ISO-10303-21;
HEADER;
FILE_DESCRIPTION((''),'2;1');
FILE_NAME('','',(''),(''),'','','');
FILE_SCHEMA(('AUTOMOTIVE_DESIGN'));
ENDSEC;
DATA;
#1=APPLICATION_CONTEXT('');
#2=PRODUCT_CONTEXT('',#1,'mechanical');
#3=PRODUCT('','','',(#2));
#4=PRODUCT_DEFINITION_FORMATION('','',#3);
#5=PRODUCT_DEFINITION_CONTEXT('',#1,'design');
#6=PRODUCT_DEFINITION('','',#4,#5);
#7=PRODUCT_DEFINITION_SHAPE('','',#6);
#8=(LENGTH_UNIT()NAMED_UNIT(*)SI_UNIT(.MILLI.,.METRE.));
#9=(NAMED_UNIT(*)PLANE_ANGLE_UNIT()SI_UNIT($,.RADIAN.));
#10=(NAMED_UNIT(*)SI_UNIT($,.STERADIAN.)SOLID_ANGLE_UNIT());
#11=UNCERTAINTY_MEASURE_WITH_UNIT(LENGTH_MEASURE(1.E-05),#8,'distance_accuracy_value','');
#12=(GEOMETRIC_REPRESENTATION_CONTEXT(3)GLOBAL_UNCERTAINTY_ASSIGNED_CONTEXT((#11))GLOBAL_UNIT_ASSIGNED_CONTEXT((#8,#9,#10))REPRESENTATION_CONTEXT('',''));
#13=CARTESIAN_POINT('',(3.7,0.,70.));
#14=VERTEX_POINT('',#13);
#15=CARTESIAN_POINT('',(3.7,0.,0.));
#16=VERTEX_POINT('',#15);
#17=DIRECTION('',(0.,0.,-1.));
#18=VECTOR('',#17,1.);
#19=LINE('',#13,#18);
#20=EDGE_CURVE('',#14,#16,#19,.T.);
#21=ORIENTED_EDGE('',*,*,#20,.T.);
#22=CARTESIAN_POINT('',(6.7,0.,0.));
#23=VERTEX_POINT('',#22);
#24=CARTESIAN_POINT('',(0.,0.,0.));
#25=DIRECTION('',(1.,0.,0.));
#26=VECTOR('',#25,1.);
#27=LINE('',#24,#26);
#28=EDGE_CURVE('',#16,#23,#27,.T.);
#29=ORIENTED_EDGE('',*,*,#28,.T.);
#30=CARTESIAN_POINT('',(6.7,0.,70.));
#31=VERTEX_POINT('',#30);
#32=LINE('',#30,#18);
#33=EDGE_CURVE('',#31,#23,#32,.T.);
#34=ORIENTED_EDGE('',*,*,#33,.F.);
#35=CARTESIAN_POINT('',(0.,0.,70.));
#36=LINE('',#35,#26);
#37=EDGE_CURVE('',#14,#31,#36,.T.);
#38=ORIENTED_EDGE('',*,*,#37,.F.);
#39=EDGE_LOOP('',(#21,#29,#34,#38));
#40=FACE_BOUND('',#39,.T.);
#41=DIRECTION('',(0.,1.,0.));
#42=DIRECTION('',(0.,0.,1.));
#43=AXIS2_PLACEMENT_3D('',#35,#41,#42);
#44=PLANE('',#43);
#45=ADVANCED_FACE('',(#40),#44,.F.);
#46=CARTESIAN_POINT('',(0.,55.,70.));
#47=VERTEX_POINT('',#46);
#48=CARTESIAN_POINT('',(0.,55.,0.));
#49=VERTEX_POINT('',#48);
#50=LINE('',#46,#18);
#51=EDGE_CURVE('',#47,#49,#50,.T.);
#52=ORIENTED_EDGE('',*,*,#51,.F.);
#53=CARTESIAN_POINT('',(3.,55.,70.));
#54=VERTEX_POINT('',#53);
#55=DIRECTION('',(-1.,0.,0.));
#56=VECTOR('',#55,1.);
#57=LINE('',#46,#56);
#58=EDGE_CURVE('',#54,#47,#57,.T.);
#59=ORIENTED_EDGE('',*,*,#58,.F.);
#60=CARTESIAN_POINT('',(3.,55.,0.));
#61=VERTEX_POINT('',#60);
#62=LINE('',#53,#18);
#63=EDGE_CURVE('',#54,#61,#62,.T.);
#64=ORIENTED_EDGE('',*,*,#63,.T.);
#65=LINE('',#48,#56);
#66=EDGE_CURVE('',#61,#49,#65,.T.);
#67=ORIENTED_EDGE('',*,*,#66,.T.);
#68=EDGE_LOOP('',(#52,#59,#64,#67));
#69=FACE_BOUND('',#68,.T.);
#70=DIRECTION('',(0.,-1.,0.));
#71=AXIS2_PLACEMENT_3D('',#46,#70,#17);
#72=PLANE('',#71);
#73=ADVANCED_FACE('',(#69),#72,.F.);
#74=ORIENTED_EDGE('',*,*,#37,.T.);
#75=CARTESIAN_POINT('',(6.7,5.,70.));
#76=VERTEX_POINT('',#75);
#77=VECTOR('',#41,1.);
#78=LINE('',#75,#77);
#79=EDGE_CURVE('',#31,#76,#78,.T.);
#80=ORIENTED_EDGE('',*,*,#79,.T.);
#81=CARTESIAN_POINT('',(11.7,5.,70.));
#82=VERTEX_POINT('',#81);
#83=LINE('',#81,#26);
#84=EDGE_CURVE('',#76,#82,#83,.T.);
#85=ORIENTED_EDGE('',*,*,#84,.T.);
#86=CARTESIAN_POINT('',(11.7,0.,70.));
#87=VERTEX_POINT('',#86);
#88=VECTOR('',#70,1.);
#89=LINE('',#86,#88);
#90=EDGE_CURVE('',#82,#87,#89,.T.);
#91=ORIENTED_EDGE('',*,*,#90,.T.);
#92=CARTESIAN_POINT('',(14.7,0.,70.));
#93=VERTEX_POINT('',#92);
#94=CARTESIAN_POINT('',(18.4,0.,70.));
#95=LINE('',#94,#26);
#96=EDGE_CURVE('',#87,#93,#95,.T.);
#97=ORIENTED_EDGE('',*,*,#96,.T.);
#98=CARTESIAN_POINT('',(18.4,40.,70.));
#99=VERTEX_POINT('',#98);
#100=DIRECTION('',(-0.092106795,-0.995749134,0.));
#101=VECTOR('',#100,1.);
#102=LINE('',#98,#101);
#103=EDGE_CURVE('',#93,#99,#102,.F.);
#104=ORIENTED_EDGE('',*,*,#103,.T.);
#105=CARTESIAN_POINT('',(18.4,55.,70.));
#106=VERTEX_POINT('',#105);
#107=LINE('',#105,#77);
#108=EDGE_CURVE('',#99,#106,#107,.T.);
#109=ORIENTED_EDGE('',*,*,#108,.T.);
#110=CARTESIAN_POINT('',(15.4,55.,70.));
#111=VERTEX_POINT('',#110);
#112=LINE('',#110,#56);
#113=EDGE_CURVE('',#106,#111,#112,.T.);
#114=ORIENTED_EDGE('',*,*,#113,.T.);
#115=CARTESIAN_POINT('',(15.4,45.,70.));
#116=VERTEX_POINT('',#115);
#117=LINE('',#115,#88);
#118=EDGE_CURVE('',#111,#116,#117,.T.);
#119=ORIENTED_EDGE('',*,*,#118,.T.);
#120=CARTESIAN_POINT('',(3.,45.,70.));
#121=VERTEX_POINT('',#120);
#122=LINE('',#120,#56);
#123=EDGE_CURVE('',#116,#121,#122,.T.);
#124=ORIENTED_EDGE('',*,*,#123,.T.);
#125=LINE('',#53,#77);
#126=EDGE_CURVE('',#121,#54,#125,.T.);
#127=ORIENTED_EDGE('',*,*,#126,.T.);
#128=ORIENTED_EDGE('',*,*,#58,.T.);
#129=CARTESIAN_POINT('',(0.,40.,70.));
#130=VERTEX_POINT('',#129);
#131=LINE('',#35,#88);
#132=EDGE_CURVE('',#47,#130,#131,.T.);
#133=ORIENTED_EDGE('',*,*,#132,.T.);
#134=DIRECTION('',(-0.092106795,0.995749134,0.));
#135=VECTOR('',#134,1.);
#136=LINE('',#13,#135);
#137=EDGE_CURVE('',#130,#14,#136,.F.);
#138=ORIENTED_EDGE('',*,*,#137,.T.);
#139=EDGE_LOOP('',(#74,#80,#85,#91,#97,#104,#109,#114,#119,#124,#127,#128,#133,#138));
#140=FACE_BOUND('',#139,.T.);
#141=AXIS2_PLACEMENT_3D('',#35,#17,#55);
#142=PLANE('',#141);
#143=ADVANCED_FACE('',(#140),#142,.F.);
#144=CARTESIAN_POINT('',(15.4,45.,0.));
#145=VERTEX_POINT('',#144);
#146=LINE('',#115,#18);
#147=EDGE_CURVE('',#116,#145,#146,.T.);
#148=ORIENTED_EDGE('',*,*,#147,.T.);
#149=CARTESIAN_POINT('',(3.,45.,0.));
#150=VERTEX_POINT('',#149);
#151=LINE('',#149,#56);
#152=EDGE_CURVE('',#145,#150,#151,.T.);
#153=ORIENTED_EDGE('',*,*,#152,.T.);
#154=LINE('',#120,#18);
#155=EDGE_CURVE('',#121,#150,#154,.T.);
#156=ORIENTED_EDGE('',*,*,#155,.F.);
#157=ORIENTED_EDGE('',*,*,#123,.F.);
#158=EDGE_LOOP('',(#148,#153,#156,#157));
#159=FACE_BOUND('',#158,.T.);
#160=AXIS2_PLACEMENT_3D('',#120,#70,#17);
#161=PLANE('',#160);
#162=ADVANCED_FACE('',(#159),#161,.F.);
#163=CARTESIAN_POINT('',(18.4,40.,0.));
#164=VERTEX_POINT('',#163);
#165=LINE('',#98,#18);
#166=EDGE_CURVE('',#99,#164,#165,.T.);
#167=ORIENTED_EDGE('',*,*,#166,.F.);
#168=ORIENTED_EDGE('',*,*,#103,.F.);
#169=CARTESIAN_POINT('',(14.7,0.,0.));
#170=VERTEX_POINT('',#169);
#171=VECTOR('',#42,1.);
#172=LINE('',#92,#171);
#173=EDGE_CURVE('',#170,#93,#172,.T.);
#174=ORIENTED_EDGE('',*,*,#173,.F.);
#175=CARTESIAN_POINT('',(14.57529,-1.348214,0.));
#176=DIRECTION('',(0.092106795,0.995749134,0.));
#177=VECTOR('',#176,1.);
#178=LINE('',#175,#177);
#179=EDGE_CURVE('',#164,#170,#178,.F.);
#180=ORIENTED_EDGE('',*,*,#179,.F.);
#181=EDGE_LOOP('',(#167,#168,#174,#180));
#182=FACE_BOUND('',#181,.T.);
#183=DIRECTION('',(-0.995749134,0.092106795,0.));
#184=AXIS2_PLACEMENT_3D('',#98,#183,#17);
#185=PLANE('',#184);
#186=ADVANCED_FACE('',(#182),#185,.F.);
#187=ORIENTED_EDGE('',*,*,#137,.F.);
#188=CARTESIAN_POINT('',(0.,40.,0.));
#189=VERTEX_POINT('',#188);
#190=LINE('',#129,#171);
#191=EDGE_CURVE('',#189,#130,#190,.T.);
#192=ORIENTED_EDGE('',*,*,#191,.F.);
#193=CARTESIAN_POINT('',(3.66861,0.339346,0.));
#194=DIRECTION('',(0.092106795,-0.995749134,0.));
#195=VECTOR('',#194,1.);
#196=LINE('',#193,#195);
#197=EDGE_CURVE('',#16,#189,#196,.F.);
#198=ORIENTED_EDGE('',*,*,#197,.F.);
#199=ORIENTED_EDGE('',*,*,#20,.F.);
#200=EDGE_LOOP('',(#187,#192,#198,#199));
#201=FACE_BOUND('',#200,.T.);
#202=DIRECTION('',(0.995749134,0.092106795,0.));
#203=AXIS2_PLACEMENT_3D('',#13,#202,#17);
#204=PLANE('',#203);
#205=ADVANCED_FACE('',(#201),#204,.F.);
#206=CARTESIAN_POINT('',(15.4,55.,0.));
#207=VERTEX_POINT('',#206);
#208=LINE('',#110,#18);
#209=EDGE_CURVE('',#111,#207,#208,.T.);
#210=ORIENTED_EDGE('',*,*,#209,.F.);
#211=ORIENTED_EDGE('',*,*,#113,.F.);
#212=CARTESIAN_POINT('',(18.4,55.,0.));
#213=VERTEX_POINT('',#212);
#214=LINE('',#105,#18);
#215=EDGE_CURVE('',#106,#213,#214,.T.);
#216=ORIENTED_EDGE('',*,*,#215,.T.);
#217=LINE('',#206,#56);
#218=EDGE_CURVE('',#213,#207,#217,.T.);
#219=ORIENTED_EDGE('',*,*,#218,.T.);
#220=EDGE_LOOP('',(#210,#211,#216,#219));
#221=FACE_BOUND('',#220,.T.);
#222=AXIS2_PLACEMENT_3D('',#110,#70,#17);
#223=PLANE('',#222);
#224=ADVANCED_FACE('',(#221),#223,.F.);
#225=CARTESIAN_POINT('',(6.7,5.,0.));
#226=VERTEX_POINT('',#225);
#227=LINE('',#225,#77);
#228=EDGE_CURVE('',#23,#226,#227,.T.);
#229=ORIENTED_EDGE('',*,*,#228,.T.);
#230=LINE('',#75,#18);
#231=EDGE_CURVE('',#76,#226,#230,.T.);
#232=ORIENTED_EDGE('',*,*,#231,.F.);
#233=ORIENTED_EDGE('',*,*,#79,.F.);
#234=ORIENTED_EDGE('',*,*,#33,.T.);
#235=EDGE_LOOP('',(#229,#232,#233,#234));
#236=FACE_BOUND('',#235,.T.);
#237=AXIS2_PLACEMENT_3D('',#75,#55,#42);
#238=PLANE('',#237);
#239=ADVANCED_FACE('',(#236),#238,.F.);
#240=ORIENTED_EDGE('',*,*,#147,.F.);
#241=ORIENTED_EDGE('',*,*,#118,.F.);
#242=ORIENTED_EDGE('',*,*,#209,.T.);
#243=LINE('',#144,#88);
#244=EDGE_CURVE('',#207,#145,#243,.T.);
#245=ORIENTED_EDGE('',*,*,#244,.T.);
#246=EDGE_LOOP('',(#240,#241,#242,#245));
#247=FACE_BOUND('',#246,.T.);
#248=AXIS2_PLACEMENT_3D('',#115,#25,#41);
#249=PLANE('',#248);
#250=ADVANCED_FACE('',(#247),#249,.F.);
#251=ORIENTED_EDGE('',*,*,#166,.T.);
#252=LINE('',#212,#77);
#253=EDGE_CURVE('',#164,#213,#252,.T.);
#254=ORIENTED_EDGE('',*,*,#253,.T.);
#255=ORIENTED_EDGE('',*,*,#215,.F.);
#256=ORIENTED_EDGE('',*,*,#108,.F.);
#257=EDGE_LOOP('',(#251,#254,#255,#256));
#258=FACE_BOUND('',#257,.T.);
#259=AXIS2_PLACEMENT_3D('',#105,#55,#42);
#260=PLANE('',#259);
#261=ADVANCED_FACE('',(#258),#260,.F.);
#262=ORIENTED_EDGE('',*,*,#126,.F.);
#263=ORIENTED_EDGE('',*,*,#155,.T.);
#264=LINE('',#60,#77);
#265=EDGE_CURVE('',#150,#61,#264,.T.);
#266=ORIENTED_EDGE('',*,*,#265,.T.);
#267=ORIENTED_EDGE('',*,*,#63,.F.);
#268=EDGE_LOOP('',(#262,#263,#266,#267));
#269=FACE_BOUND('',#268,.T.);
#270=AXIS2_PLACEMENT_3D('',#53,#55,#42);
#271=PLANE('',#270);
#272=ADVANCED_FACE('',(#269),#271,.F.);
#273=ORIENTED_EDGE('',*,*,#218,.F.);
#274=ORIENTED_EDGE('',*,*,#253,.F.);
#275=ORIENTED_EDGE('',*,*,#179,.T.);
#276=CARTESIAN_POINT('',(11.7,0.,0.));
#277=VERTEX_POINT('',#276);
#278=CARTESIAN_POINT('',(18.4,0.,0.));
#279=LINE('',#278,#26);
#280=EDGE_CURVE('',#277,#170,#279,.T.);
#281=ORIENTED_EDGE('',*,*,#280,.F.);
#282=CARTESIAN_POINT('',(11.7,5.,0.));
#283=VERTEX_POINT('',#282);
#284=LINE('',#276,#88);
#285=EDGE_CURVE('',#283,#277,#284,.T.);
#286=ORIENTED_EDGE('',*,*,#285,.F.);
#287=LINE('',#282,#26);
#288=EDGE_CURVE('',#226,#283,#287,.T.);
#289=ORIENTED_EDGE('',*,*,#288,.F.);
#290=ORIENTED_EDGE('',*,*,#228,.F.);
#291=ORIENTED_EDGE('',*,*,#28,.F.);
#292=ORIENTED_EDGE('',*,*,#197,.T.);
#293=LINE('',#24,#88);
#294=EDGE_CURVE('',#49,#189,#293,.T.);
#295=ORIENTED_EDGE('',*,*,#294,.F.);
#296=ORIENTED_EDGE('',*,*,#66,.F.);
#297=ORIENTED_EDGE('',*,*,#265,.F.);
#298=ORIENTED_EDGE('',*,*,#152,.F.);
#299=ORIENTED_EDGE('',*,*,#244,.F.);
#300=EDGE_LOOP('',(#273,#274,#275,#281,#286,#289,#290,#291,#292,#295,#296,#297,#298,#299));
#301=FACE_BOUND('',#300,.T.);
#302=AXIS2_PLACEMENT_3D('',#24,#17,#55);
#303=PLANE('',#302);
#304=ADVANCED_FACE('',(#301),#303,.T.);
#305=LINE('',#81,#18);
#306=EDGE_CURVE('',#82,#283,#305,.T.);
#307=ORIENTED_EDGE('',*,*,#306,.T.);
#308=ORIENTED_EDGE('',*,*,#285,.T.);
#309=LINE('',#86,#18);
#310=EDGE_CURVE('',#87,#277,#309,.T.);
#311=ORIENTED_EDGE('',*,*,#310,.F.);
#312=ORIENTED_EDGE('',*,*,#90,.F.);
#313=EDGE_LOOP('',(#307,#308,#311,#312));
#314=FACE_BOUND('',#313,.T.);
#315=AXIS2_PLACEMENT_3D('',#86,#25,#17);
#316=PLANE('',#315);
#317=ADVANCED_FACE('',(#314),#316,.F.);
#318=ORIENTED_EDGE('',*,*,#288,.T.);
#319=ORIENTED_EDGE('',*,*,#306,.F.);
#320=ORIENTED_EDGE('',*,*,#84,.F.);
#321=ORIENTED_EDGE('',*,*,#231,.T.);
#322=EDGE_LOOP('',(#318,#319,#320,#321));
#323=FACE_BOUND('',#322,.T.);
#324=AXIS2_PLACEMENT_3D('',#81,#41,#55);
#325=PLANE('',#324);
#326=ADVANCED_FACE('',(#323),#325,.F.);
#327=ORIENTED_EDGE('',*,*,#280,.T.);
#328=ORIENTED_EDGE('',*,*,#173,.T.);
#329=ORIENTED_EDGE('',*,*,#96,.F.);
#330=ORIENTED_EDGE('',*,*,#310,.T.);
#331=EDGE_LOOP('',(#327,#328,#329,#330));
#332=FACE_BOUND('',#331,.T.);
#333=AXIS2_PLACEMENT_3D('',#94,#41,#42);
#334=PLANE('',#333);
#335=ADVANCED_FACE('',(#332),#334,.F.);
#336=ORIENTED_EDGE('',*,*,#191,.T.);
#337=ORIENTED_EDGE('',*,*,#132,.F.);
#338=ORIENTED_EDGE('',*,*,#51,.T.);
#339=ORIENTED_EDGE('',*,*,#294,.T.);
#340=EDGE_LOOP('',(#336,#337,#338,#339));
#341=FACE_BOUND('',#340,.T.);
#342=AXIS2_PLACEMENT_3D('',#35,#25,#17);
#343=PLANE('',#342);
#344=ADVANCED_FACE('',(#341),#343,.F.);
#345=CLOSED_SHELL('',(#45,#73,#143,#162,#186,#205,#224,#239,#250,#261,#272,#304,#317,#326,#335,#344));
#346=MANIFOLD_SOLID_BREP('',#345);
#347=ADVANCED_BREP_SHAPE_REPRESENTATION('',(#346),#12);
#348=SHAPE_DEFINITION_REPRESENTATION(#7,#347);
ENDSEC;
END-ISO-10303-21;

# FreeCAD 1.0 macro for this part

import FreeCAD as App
import Part
import Sketcher


def edges_at(feature, points):
    """Names of the edges that pass closest to the given points."""
    edges = feature.Shape.Edges
    near = lambda p: min(range(len(edges)), key=lambda i: edges[i].distToShape(Part.Vertex(*p))[0])
    return sorted({f"Edge{near(p) + 1}" for p in points})


def add_polygon(sketch, points):
    """Adds a closed chain of lines whose ends are joined by coincident constraints."""
    first, n = sketch.GeometryCount, len(points)
    for a, b in zip(points, points[1:] + points[:1]):
        sketch.addGeometry(Part.LineSegment(App.Vector(*a, 0), App.Vector(*b, 0)), False)
    for i in range(n):
        sketch.addConstraint(Sketcher.Constraint("Coincident", first + i, 2, first + (i + 1) % n, 1))

doc = App.newDocument("Part")
body = doc.addObject("PartDesign::Body", "Body")

sketch1 = body.newObject("Sketcher::SketchObject", "Sketch")
sketch1.AttachmentSupport = (doc.getObject("XY_Plane"), [""])
sketch1.MapMode = "FlatFace"
add_polygon(sketch1, [(0, 55), (0, 0), (6.7, 0), (6.7, 5), (11.7, 5), (11.7, 0), (18.4, 0), (18.4, 55), (15.4, 55), (15.4, 45), (3, 45), (3, 55)])
sketch1.addConstraint([
    Sketcher.Constraint("Vertical", 0),
    Sketcher.Constraint("Horizontal", 1),
    Sketcher.Constraint("Vertical", 2),
    Sketcher.Constraint("Horizontal", 3),
    Sketcher.Constraint("Vertical", 4),
    Sketcher.Constraint("Horizontal", 5),
    Sketcher.Constraint("Vertical", 6),
    Sketcher.Constraint("Horizontal", 7),
    Sketcher.Constraint("Vertical", 8),
    Sketcher.Constraint("Horizontal", 9),
    Sketcher.Constraint("Vertical", 10),
    Sketcher.Constraint("Horizontal", 11),
    Sketcher.Constraint("Coincident", 0, 2, -1, 1),
    Sketcher.Constraint("PointOnObject", 4, 2, -1),
    Sketcher.Constraint("Horizontal", 7, 2, 10, 2),
    Sketcher.Constraint("Equal", 1, 5),
    Sketcher.Constraint("Equal", 7, 11),
    Sketcher.Constraint("Equal", 3, 2),
    Sketcher.Constraint("DistanceX", 3, 1, 3, 2, 5.0),
    Sketcher.Constraint("DistanceX", 7, 2, 7, 1, 3.0),
    Sketcher.Constraint("DistanceY", 0, 2, 0, 1, 55.0),
    Sketcher.Constraint("DistanceY", 8, 2, 8, 1, 10.0),
    Sketcher.Constraint("DistanceX", 1, 1, 1, 2, 6.7),
])
pad1 = body.newObject("PartDesign::Pad", "Pad")
pad1.Profile = sketch1
pad1.Length = 70
doc.recompute()

chamfer = body.newObject("PartDesign::Chamfer", "Chamfer")
chamfer.Base = (pad1, edges_at(pad1, [(0, 0, 35)]))
chamfer.ChamferType = "Two distances"
chamfer.Size = 40
chamfer.Size2 = 3.7
doc.recompute()

chamfer2 = body.newObject("PartDesign::Chamfer", "Chamfer001")
chamfer2.Base = (chamfer, edges_at(chamfer, [(18.4, 0, 35)]))
chamfer2.ChamferType = "Two distances"
chamfer2.Size = 3.7
chamfer2.Size2 = 40

doc.recompute()
